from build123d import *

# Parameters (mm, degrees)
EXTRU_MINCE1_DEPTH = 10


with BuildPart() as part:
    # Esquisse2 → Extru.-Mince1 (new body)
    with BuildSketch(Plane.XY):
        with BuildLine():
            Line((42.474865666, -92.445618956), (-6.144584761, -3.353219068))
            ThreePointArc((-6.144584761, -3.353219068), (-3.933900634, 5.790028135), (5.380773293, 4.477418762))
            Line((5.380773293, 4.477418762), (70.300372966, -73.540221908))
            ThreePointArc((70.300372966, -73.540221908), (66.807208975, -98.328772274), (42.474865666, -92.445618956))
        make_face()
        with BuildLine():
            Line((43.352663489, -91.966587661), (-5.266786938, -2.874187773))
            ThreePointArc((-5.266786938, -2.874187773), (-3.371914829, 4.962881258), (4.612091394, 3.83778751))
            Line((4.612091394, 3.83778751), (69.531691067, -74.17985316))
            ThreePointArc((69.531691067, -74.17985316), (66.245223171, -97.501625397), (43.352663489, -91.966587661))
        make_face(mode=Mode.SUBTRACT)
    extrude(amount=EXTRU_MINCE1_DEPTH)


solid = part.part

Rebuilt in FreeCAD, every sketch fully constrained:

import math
import FreeCAD as App
import Part
import Sketcher

doc = App.newDocument("Part")
body = doc.addObject("PartDesign::Body", "Body")

# Sketch on XY plane
sketch1 = body.newObject("Sketcher::SketchObject", "Sketch")
sketch1.AttachmentSupport = (doc.getObject("XY_Plane"), [""])
sketch1.MapMode = "FlatFace"
sketch1.addGeometry([
    Part.LineSegment(App.Vector(-6.144585, -3.353219, 0), App.Vector(42.474866, -92.445619, 0)),  # 0
    Part.ArcOfCircle(Part.Circle(App.Vector(57.309649, -84.34999, 0), App.Vector(0, 0, 1), 16.9), math.radians(-151.377847), math.radians(39.764328)),  # 1
    Part.LineSegment(App.Vector(70.300373, -73.540222, 0), App.Vector(5.380773, 4.477419, 0)),  # 2
    Part.ArcOfCircle(Part.Circle(App.Vector(0, 0, 0), App.Vector(0, 0, 1), 7), math.radians(39.764328), math.radians(208.622153)),  # 3
    Part.LineSegment(App.Vector(43.352663, -91.966588, 0), App.Vector(-5.266787, -2.874188, 0)),  # 4
    Part.ArcOfCircle(Part.Circle(App.Vector(0, 0, 0), App.Vector(0, 0, 1), 6), math.radians(39.764328), math.radians(208.622153)),  # 5
    Part.LineSegment(App.Vector(4.612091, 3.837788, 0), App.Vector(69.531691, -74.179853, 0)),  # 6
    Part.ArcOfCircle(Part.Circle(App.Vector(57.309649, -84.34999, 0), App.Vector(0, 0, 1), 15.9), math.radians(-151.377847), math.radians(39.764328)),  # 7
], False)
sketch1.addConstraint([
    Sketcher.Constraint("Tangent", 0, 2, 1, 1),
    Sketcher.Constraint("Tangent", 1, 2, 2, 1),
    Sketcher.Constraint("Tangent", 2, 2, 3, 1),
    Sketcher.Constraint("Tangent", 3, 2, 0, 1),
    Sketcher.Constraint("Tangent", 4, 2, 5, 2),
    Sketcher.Constraint("Tangent", 5, 1, 6, 1),
    Sketcher.Constraint("Tangent", 6, 2, 7, 2),
    Sketcher.Constraint("Tangent", 7, 1, 4, 1),
    Sketcher.Constraint("Coincident", 3, 3, -1, 1),
    Sketcher.Constraint("Coincident", 5, 3, -1, 1),
    Sketcher.Constraint("Coincident", 7, 3, 1, 3),
    Sketcher.Constraint("Parallel", 0, 4),
    Sketcher.Constraint("Radius", 3, 7.0),
    Sketcher.Constraint("Radius", 5, 6.0),
    Sketcher.Constraint("Radius", 1, 16.9),
    Sketcher.Constraint("DistanceX", 2, 2, 1, 2, 64.9196),
    Sketcher.Constraint("DistanceY", 0, 2, 3, 2, 89.0924),
])
pad1 = body.newObject("PartDesign::Pad", "Pad")
pad1.Profile = sketch1
pad1.Length = 10

doc.recompute()
